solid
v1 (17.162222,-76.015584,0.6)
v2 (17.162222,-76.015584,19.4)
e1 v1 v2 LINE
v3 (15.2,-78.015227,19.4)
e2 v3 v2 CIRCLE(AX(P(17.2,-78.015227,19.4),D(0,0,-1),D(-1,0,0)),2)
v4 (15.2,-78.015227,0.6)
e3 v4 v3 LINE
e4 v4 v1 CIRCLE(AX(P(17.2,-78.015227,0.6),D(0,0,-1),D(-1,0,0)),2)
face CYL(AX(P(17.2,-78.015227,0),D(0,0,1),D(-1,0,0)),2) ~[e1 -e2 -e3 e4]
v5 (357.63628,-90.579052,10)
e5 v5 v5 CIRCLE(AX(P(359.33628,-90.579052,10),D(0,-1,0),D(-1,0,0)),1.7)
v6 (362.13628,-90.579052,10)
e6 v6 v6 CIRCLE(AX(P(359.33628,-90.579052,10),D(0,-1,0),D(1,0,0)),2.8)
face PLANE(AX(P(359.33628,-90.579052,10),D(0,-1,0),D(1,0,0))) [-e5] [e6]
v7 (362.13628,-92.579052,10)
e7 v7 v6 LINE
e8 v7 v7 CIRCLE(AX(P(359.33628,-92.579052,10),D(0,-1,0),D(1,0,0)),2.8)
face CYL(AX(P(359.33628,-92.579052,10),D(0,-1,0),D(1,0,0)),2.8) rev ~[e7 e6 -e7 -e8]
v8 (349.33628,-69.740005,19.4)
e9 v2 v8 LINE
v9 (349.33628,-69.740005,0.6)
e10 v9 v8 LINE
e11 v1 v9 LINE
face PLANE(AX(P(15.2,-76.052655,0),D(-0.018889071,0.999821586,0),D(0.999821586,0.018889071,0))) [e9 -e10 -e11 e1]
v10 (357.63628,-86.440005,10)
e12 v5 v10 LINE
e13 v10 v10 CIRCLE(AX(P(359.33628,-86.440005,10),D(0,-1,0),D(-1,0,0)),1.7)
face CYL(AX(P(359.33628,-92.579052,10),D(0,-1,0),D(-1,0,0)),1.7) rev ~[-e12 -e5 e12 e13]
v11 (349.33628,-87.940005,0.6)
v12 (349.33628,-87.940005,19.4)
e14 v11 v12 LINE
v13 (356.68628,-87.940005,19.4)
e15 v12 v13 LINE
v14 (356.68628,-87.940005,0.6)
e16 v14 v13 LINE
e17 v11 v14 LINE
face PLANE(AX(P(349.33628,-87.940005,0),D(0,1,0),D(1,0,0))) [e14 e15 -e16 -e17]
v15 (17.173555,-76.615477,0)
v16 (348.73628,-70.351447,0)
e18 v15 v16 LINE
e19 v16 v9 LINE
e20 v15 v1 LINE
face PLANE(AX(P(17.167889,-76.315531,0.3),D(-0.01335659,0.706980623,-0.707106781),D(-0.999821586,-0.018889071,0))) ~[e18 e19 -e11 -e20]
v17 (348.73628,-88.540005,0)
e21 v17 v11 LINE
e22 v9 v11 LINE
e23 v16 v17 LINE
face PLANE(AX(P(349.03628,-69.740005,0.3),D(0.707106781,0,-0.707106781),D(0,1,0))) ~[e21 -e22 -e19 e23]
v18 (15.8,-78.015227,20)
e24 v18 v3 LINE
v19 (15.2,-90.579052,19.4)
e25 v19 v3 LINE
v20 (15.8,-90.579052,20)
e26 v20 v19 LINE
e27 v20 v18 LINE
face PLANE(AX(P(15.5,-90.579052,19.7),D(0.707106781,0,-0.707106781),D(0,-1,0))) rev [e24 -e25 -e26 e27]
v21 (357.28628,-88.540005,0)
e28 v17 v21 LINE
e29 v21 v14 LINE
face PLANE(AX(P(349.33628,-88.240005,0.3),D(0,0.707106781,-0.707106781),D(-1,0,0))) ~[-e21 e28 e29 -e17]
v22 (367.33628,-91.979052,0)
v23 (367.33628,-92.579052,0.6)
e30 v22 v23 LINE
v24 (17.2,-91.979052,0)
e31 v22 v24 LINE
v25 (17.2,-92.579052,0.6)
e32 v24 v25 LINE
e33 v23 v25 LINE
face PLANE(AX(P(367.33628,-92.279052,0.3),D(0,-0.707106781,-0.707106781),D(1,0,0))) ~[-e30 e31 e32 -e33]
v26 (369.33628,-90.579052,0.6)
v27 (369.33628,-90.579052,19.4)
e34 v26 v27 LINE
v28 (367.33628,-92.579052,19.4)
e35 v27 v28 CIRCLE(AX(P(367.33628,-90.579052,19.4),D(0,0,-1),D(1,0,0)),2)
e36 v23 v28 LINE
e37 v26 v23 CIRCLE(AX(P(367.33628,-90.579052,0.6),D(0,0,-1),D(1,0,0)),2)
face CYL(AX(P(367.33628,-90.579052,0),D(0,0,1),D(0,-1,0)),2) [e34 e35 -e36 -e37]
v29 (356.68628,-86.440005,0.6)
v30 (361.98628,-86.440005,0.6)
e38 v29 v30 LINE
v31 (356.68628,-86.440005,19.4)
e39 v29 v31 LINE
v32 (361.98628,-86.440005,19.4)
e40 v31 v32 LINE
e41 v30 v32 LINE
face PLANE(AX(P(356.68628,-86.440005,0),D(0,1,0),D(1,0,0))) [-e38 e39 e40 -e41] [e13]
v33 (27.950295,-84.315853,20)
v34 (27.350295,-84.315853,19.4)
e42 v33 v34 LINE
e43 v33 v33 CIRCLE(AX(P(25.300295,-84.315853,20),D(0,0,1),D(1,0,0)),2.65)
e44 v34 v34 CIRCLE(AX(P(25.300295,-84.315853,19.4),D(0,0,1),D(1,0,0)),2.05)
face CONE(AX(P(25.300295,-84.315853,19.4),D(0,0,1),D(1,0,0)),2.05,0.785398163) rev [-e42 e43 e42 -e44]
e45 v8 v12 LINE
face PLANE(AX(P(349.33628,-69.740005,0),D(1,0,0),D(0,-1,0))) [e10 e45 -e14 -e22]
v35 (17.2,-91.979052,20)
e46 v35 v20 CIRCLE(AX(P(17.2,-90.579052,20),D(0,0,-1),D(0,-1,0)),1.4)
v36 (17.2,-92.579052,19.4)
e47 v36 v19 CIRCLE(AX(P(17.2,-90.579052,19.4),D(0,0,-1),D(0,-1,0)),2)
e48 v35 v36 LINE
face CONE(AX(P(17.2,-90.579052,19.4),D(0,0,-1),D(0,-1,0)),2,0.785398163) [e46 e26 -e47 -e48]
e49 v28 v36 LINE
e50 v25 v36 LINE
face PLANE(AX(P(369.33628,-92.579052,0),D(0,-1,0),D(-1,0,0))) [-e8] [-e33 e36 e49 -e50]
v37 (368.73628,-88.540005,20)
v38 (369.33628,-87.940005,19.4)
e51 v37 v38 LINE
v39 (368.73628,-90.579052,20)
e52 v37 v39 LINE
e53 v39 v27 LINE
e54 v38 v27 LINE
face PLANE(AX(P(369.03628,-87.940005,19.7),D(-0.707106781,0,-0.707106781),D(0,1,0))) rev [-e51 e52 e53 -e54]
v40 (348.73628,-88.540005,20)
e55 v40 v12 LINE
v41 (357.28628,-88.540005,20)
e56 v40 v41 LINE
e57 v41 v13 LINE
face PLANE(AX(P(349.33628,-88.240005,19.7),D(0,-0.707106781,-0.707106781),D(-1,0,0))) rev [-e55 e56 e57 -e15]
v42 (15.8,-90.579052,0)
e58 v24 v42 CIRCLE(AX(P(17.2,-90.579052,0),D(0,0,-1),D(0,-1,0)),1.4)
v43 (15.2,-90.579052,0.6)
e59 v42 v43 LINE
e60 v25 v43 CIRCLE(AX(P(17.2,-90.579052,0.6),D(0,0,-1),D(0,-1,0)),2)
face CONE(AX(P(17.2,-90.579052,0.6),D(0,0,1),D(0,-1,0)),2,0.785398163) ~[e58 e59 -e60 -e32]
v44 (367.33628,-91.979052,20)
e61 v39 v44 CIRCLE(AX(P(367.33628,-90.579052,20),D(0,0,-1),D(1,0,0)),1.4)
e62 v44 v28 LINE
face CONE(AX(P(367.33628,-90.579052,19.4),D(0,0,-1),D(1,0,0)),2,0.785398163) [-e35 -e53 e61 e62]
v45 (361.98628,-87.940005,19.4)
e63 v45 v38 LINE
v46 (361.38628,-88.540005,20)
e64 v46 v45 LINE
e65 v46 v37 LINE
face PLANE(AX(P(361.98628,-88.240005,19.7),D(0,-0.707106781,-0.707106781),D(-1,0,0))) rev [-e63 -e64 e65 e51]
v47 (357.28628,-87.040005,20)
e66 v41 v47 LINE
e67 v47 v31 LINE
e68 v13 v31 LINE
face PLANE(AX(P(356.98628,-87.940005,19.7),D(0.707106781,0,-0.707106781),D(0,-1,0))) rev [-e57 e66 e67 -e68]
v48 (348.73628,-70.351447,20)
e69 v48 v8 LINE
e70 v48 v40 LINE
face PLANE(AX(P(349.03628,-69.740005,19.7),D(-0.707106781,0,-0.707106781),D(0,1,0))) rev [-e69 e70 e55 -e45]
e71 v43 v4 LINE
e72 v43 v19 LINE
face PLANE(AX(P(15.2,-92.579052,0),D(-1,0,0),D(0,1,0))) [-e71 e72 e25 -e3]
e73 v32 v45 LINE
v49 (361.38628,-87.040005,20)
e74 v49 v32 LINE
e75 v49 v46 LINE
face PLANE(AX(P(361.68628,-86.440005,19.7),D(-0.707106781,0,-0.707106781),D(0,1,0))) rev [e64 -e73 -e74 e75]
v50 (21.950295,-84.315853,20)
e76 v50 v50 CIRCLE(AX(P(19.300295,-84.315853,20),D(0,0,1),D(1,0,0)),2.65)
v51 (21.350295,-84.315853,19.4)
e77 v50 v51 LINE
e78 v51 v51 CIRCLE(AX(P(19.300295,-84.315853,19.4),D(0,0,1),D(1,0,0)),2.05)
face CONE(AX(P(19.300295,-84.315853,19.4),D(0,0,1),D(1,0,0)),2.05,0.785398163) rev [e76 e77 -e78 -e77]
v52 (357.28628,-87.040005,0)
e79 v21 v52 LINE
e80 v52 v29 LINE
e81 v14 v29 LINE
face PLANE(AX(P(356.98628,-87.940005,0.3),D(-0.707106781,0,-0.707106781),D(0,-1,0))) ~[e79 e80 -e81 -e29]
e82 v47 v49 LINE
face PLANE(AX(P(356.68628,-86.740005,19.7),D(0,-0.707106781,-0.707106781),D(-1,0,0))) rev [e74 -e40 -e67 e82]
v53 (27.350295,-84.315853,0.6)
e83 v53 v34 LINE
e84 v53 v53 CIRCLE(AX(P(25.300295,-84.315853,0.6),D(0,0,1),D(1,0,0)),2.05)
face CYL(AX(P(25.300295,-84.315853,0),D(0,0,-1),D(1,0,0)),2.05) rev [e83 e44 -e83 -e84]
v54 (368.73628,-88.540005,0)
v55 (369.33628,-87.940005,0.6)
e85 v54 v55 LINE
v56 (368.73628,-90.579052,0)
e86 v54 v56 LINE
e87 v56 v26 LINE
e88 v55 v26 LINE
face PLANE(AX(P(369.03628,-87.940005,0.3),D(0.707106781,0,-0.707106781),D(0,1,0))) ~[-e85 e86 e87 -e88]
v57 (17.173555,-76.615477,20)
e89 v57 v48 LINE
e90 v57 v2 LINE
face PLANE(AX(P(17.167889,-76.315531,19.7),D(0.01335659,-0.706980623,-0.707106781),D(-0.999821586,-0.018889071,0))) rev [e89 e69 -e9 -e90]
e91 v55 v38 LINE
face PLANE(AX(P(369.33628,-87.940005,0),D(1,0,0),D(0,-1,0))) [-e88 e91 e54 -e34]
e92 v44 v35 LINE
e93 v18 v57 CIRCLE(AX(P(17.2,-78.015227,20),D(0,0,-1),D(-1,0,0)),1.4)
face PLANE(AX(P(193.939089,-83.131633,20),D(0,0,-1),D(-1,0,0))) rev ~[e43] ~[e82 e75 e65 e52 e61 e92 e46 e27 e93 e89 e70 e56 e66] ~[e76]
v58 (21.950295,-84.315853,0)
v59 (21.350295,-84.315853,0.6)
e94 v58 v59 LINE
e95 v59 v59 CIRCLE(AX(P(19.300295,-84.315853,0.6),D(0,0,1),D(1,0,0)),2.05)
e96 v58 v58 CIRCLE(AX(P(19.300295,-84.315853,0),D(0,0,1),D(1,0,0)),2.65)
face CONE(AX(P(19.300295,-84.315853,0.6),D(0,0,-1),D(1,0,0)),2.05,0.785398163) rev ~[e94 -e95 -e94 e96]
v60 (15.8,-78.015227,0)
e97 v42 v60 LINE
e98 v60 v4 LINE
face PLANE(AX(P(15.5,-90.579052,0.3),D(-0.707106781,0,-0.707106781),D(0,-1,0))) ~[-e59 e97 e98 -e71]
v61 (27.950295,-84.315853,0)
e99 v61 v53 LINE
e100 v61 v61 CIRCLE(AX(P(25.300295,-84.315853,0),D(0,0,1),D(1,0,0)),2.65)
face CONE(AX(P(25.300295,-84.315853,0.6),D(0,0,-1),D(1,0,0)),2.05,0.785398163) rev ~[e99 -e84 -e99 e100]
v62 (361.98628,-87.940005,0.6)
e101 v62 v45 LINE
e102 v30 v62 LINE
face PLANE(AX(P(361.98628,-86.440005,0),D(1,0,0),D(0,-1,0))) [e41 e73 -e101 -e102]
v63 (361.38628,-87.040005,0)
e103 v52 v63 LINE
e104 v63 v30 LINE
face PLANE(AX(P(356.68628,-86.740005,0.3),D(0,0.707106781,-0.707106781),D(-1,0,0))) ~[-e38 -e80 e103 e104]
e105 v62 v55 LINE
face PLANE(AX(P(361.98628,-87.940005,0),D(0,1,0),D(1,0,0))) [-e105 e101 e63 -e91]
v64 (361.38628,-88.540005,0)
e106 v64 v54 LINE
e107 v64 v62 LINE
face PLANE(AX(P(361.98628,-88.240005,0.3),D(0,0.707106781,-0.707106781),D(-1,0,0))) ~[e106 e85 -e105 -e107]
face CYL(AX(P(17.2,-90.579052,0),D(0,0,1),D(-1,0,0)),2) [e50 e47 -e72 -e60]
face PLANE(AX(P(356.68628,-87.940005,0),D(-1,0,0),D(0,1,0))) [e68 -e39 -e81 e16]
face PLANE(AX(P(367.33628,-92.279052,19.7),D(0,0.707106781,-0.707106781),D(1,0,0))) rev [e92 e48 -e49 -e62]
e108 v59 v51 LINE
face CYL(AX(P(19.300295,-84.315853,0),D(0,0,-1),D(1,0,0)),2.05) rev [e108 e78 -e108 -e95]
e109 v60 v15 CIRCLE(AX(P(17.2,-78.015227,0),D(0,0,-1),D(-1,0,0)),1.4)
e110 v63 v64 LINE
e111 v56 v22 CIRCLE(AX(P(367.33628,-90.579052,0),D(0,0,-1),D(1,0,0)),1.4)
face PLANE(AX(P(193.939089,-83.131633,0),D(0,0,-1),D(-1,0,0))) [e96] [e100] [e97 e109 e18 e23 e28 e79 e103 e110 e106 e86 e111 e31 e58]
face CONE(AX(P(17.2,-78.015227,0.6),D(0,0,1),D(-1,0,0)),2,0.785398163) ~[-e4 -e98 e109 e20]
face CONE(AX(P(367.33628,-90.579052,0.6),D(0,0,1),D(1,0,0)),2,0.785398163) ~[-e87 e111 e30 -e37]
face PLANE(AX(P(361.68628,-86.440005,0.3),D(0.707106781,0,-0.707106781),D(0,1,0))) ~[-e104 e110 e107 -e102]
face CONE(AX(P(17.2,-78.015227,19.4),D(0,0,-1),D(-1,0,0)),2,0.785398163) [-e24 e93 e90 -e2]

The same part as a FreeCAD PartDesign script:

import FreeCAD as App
import Part
import Sketcher


def edges_at(feature, points):
    """Names of the edges that pass closest to the given points."""
    edges = feature.Shape.Edges
    near = lambda p: min(range(len(edges)), key=lambda i: edges[i].distToShape(Part.Vertex(*p))[0])
    return sorted({f"Edge{near(p) + 1}" for p in points})

doc = App.newDocument("Part")
body = doc.addObject("PartDesign::Body", "Body")

# Sketch on XY plane
sketch1 = doc.addObject("Sketcher::SketchObject", "Sketch")
body.addObject(sketch1)
sketch1.AttachmentSupport = (doc.XY_Plane, [""])
sketch1.MapMode = "FlatFace"
sketch1.addGeometry(Part.LineSegment(App.Vector(15.2, -76.1, 0), App.Vector(15.2, -92.6, 0)), False)
sketch1.addGeometry(Part.LineSegment(App.Vector(15.2, -92.6, 0), App.Vector(369.3, -92.6, 0)), False)
sketch1.addGeometry(Part.LineSegment(App.Vector(369.3, -92.6, 0), App.Vector(369.3, -87.9, 0)), False)
sketch1.addGeometry(Part.LineSegment(App.Vector(369.3, -87.9, 0), App.Vector(362, -87.9, 0)), False)
sketch1.addGeometry(Part.LineSegment(App.Vector(362, -87.9, 0), App.Vector(362, -86.4, 0)), False)
sketch1.addGeometry(Part.LineSegment(App.Vector(362, -86.4, 0), App.Vector(356.7, -86.4, 0)), False)
sketch1.addGeometry(Part.LineSegment(App.Vector(356.7, -86.4, 0), App.Vector(356.7, -87.9, 0)), False)
sketch1.addGeometry(Part.LineSegment(App.Vector(356.7, -87.9, 0), App.Vector(349.3, -87.9, 0)), False)
sketch1.addGeometry(Part.LineSegment(App.Vector(349.3, -87.9, 0), App.Vector(349.3, -69.7, 0)), False)
sketch1.addGeometry(Part.LineSegment(App.Vector(349.3, -69.7, 0), App.Vector(15.2, -76.1, 0)), False)
sketch1.addGeometry(Part.Circle(App.Vector(25.3, -84.3, 0), App.Vector(0, 0, 1), 2), False)
sketch1.addGeometry(Part.Circle(App.Vector(19.3, -84.3, 0), App.Vector(0, 0, 1), 2), False)
sketch1.addConstraint(Sketcher.Constraint("Coincident", 0, 2, 1, 1))
sketch1.addConstraint(Sketcher.Constraint("Coincident", 1, 2, 2, 1))
sketch1.addConstraint(Sketcher.Constraint("Coincident", 2, 2, 3, 1))
sketch1.addConstraint(Sketcher.Constraint("Coincident", 3, 2, 4, 1))
sketch1.addConstraint(Sketcher.Constraint("Coincident", 4, 2, 5, 1))
sketch1.addConstraint(Sketcher.Constraint("Coincident", 5, 2, 6, 1))
sketch1.addConstraint(Sketcher.Constraint("Coincident", 6, 2, 7, 1))
sketch1.addConstraint(Sketcher.Constraint("Coincident", 7, 2, 8, 1))
sketch1.addConstraint(Sketcher.Constraint("Coincident", 8, 2, 9, 1))
sketch1.addConstraint(Sketcher.Constraint("Coincident", 9, 2, 0, 1))
sketch1.addConstraint(Sketcher.Constraint("Vertical", 0))
sketch1.addConstraint(Sketcher.Constraint("Horizontal", 1))
sketch1.addConstraint(Sketcher.Constraint("Vertical", 2))
sketch1.addConstraint(Sketcher.Constraint("Horizontal", 3))
sketch1.addConstraint(Sketcher.Constraint("Vertical", 4))
sketch1.addConstraint(Sketcher.Constraint("Horizontal", 5))
sketch1.addConstraint(Sketcher.Constraint("Vertical", 6))
sketch1.addConstraint(Sketcher.Constraint("Horizontal", 7))
sketch1.addConstraint(Sketcher.Constraint("Vertical", 8))
sketch1.addConstraint(Sketcher.Constraint("Equal", 10, 11))
sketch1.addConstraint(Sketcher.Constraint("Horizontal", 10, 3, 11, 3))
sketch1.addConstraint(Sketcher.Constraint("Horizontal", 3, 2, 6, 2))
sketch1.addConstraint(Sketcher.Constraint("Equal", 3, 7))
sketch1.addConstraint(Sketcher.Constraint("Diameter", 10, 4.1))
sketch1.addConstraint(Sketcher.Constraint("DistanceX", 5, 2, 5, 1, 5.3))
sketch1.addConstraint(Sketcher.Constraint("DistanceY", 4, 1, 4, 2, 1.5))
sketch1.addConstraint(Sketcher.Constraint("DistanceY", 8, 1, 8, 2, 18.2))
sketch1.addConstraint(Sketcher.Constraint("DistanceX", 11, 3, 10, 3, 6.0))
sketch1.addConstraint(Sketcher.Constraint("DistanceX", 7, 2, 2, 2, 20.0))
sketch1.addConstraint(Sketcher.Constraint("DistanceX", -1, 1, 0, 2, 15.2))
sketch1.addConstraint(Sketcher.Constraint("DistanceX", 1, 1, 1, 2, 354.13628))
sketch1.addConstraint(Sketcher.Constraint("DistanceY", 0, 2, 11, 3, 8.263198))
sketch1.addConstraint(Sketcher.Constraint("DistanceY", 11, 3, 9, 2, 8.263198))
sketch1.addConstraint(Sketcher.Constraint("DistanceY", 2, 1, 2, 2, 4.639047))
sketch1.addConstraint(Sketcher.Constraint("DistanceY", 0, 2, -1, 1, 92.579052))
sketch1.addConstraint(Sketcher.Constraint("DistanceX", -1, 1, 10, 3, 25.300295))
pad1 = doc.addObject("PartDesign::Pad", "Pad")
body.addObject(pad1)
pad1.Profile = sketch1
pad1.Length = 20

# Sketch on XZ plane
sketch2 = doc.addObject("Sketcher::SketchObject", "Sketch001")
body.addObject(sketch2)
sketch2.AttachmentSupport = (doc.XZ_Plane, [""])
sketch2.MapMode = "FlatFace"
sketch2.AttachmentOffset = App.Placement(App.Vector(0, 0, 92.579052), App.Rotation())
sketch2.addGeometry(Part.Circle(App.Vector(359.3, 10, 0), App.Vector(0, 0, 1), 1.7), False)
sketch2.addConstraint(Sketcher.Constraint("Diameter", 0, 3.4))
sketch2.addConstraint(Sketcher.Constraint("DistanceY", -1, 1, 0, 3, 10.0))
sketch2.addConstraint(Sketcher.Constraint("DistanceX", -1, 1, 0, 3, 359.33628))
pocket1 = doc.addObject("PartDesign::Pocket", "Pocket")
body.addObject(pocket1)
pocket1.Profile = sketch2
pocket1.Length = 20

# Sketch on XZ plane
sketch3 = doc.addObject("Sketcher::SketchObject", "Sketch002")
body.addObject(sketch3)
sketch3.AttachmentSupport = (doc.XZ_Plane, [""])
sketch3.MapMode = "FlatFace"
sketch3.AttachmentOffset = App.Placement(App.Vector(0, 0, 92.579052), App.Rotation())
sketch3.addGeometry(Part.Circle(App.Vector(359.3, 10, 0), App.Vector(0, 0, 1), 2.8), False)
sketch3.addConstraint(Sketcher.Constraint("Diameter", 0, 5.6))
sketch3.addConstraint(Sketcher.Constraint("DistanceY", -1, 1, 0, 3, 10.0))
sketch3.addConstraint(Sketcher.Constraint("DistanceX", -1, 1, 0, 3, 359.33628))
pocket2 = doc.addObject("PartDesign::Pocket", "Pocket001")
body.addObject(pocket2)
pocket2.Profile = sketch3
pocket2.Length = 2
doc.recompute()

fillet = doc.addObject("PartDesign::Fillet", "Fillet")
body.addObject(fillet)
fillet.Base = (pocket2, edges_at(pocket2, [(15.2, -92.579, 10), (15.2, -76.053, 10), (369.336, -92.579, 10)]))
fillet.Radius = 2
doc.recompute()

chamfer = doc.addObject("PartDesign::Chamfer", "Chamfer")
body.addObject(chamfer)
chamfer.Base = (fillet, edges_at(fillet, [
    (183.249, -72.878, 0),
    (349.336, -78.84, 0),
    (353.011, -87.94, 0),
    (356.686, -87.19, 0),
    (359.336, -86.44, 0),
    (361.986, -87.19, 0),
    (365.661, -87.94, 0),
    (23.25, -84.316, 0),
    (17.25, -84.316, 0),
    (369.336, -89.26, 0),
    (192.268, -92.579, 0),
    (15.2, -84.297, 0),
    (15.786, -91.993, 0),
    (15.772, -76.614, 0),
    (368.75, -91.993, 0),
]))
chamfer.Size = 0.6
doc.recompute()

chamfer2 = doc.addObject("PartDesign::Chamfer", "Chamfer001")
body.addObject(chamfer2)
chamfer2.Base = (chamfer, edges_at(chamfer, [
    (365.661, -87.94, 20),
    (361.986, -87.19, 20),
    (359.336, -86.44, 20),
    (356.686, -87.19, 20),
    (23.25, -84.316, 20),
    (353.011, -87.94, 20),
    (17.25, -84.316, 20),
    (349.336, -78.84, 20),
    (183.249, -72.878, 20),
    (369.336, -89.26, 20),
    (192.268, -92.579, 20),
    (15.2, -84.297, 20),
    (15.786, -91.993, 20),
    (15.772, -76.614, 20),
    (368.75, -91.993, 20),
]))
chamfer2.Size = 0.6

doc.recompute()
